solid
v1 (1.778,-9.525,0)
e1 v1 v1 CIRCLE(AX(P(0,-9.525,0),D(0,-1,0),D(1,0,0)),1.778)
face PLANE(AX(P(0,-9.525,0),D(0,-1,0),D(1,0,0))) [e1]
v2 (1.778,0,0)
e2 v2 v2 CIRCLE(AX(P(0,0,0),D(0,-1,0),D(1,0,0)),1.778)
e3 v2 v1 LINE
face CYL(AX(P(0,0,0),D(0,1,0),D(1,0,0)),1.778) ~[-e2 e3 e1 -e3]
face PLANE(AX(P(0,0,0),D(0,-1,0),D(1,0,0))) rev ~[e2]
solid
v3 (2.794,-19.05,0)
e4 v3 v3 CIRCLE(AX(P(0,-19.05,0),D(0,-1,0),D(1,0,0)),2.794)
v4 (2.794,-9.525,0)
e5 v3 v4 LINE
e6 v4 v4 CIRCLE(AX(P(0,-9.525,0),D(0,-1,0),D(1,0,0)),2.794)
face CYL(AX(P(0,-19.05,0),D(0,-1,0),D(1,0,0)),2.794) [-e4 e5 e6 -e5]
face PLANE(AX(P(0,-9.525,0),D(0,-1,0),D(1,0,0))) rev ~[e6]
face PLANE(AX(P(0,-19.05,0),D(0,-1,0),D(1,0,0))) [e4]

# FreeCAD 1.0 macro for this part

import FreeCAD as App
import Part
import Sketcher
Q = App.Units.Quantity

doc = App.newDocument("Part")
params = doc.addObject("Spreadsheet::Sheet", "Params")
for row, (alias, value) in enumerate([
    ("sketch1_diameter", "0.14 in"),
    ("pad1_length", "0.375 in"),
    ("sketch2_diameter", "0.22 in"),
    ("pad2_length", "0.375 in"),
], start=1):
    params.set(f"A{row}", alias)
    params.set(f"B{row}", "=" + value)
    params.setAlias(f"B{row}", alias)

body = doc.addObject("PartDesign::Body", "Body")

# Sketch on XZ plane
sketch1 = body.newObject("Sketcher::SketchObject", "Sketch")
sketch1.AttachmentSupport = (doc.getObject("XZ_Plane"), [""])
sketch1.MapMode = "FlatFace"
sketch1.addGeometry(Part.Circle(App.Vector(0, 0, 0), App.Vector(0, 0, 1), 1.778), False)
sketch1.addConstraint([
    Sketcher.Constraint("Coincident", 0, 3, -1, 1),
    Sketcher.Constraint("Diameter", 0, Q("0.14 in")),
])
sketch1.setExpression("Constraints[1]", "Params.sketch1_diameter")
pad1 = body.newObject("PartDesign::Pad", "Pad")
pad1.Profile = sketch1
pad1.setExpression("Length", "Params.pad1_length")
body2 = doc.addObject("PartDesign::Body", "Body001")

# Sketch on XZ plane
sketch2 = body2.newObject("Sketcher::SketchObject", "Sketch001")
sketch2.AttachmentSupport = (doc.getObject("XZ_Plane001"), [""])
sketch2.MapMode = "FlatFace"
sketch2.AttachmentOffset = App.Placement(App.Vector(0, 0, 0.75 * 25.4), App.Rotation())
sketch2.addGeometry(Part.Circle(App.Vector(0, 0, 0), App.Vector(0, 0, 1), 2.794), False)
sketch2.addConstraint([
    Sketcher.Constraint("Coincident", 0, 3, -1, 1),
    Sketcher.Constraint("Diameter", 0, Q("0.22 in")),
])
sketch2.setExpression("Constraints[1]", "Params.sketch2_diameter")
pad2 = body2.newObject("PartDesign::Pad", "Pad001")
pad2.Profile = sketch2
pad2.setExpression("Length", "Params.pad2_length")
pad2.Reversed = True

doc.recompute()
